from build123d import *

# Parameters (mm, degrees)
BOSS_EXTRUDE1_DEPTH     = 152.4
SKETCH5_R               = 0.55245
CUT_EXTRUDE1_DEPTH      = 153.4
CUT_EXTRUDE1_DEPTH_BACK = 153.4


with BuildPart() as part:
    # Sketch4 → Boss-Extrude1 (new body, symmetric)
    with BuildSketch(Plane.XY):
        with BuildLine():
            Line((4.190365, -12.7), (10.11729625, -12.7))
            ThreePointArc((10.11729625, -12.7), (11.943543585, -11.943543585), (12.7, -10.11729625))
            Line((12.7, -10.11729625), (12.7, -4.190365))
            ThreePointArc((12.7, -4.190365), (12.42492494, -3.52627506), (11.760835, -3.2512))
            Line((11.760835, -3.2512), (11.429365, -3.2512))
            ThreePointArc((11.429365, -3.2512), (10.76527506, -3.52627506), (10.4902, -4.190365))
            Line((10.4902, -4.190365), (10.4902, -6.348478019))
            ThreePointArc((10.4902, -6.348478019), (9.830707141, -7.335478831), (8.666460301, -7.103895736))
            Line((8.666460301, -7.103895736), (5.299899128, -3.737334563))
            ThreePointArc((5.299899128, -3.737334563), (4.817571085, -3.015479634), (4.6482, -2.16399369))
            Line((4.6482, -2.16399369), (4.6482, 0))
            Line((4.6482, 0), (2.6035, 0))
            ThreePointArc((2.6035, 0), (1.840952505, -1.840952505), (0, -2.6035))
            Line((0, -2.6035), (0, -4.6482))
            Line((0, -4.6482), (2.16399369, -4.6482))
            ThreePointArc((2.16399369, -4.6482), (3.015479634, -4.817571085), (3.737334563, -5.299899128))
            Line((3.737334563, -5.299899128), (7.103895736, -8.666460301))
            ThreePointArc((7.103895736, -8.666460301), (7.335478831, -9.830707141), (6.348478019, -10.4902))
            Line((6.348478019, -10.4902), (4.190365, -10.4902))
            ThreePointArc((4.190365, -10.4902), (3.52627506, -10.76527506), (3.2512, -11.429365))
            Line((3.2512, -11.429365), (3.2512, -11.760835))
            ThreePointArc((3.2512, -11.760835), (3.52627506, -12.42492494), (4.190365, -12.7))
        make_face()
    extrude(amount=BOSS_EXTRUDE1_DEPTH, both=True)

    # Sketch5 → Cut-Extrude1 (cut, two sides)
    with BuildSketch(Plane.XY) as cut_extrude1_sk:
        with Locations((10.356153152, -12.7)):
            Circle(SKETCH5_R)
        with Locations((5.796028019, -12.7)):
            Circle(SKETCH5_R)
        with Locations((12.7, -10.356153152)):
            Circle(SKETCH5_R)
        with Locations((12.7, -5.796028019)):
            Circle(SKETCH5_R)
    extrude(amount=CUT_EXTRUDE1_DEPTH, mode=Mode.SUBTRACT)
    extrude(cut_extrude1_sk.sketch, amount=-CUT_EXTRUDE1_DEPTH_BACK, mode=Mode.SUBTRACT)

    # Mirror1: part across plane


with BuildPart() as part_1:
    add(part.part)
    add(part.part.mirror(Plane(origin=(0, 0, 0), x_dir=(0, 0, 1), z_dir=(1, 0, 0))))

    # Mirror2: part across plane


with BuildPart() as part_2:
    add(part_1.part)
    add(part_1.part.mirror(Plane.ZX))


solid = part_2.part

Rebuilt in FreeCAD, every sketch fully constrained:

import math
import FreeCAD as App
import Part
import Sketcher
from FreeCAD import Vector
Q = App.Units.Quantity

doc = App.newDocument("Part")
body = doc.addObject("PartDesign::Body", "Body")

sketch1 = body.newObject("Sketcher::SketchObject", "Sketch")
sketch1.AttachmentSupport = (doc.getObject("XY_Plane"), [""])
sketch1.MapMode = "FlatFace"
sketch1.addGeometry(Part.LineSegment(Vector(4.19, -12.7, 0), Vector(10.12, -12.7, 0)), False)
sketch1.addGeometry(Part.ArcOfCircle(Part.Circle(Vector(10.12, -10.12, 0), Vector(0, 0, 1), 2.58), math.radians(-90), math.radians(0)), False)
sketch1.addGeometry(Part.LineSegment(Vector(12.7, -10.12, 0), Vector(12.7, -4.19, 0)), False)
sketch1.addGeometry(Part.ArcOfCircle(Part.Circle(Vector(11.76, -4.19, 0), Vector(0, 0, 1), 0.94), math.radians(0), math.radians(90)), False)
sketch1.addGeometry(Part.LineSegment(Vector(11.76, -3.25, 0), Vector(11.43, -3.25, 0)), False)
sketch1.addGeometry(Part.ArcOfCircle(Part.Circle(Vector(11.43, -4.19, 0), Vector(0, 0, 1), 0.94), math.radians(90), math.radians(180)), False)
sketch1.addGeometry(Part.LineSegment(Vector(10.49, -4.19, 0), Vector(10.49, -6.35, 0)), False)
sketch1.addGeometry(Part.ArcOfCircle(Part.Circle(Vector(9.42, -6.35, 0), Vector(0, 0, 1), 1.07), math.radians(-135), math.radians(0)), False)
sketch1.addGeometry(Part.LineSegment(Vector(8.67, -7.1, 0), Vector(5.3, -3.74, 0)), False)
sketch1.addGeometry(Part.ArcOfCircle(Part.Circle(Vector(6.87, -2.16, 0), Vector(0, 0, 1), 2.23), math.radians(-180), math.radians(-135)), False)
sketch1.addGeometry(Part.LineSegment(Vector(4.65, -2.16, 0), Vector(4.65, 0, 0)), False)
sketch1.addGeometry(Part.LineSegment(Vector(4.65, 0, 0), Vector(2.6, 0, 0)), False)
sketch1.addGeometry(Part.ArcOfCircle(Part.Circle(Vector(0, 0, 0), Vector(0, 0, 1), 2.6), math.radians(-90), math.radians(0)), False)
sketch1.addGeometry(Part.LineSegment(Vector(0, -2.6, 0), Vector(0, -4.65, 0)), False)
sketch1.addGeometry(Part.LineSegment(Vector(0, -4.65, 0), Vector(2.16, -4.65, 0)), False)
sketch1.addGeometry(Part.ArcOfCircle(Part.Circle(Vector(2.16, -6.87, 0), Vector(0, 0, 1), 2.23), math.radians(45), math.radians(90)), False)
sketch1.addGeometry(Part.LineSegment(Vector(3.74, -5.3, 0), Vector(7.1, -8.67, 0)), False)
sketch1.addGeometry(Part.ArcOfCircle(Part.Circle(Vector(6.35, -9.42, 0), Vector(0, 0, 1), 1.07), math.radians(-90), math.radians(45)), False)
sketch1.addGeometry(Part.LineSegment(Vector(6.35, -10.49, 0), Vector(4.19, -10.49, 0)), False)
sketch1.addGeometry(Part.ArcOfCircle(Part.Circle(Vector(4.19, -11.43, 0), Vector(0, 0, 1), 0.94), math.radians(90), math.radians(180)), False)
sketch1.addGeometry(Part.LineSegment(Vector(3.25, -11.43, 0), Vector(3.25, -11.76, 0)), False)
sketch1.addGeometry(Part.ArcOfCircle(Part.Circle(Vector(4.19, -11.76, 0), Vector(0, 0, 1), 0.94), math.radians(-180), math.radians(-90)), False)
sketch1.addConstraint(Sketcher.Constraint("Tangent", 0, 2, 1, 1))
sketch1.addConstraint(Sketcher.Constraint("Tangent", 1, 2, 2, 1))
sketch1.addConstraint(Sketcher.Constraint("Tangent", 2, 2, 3, 1))
sketch1.addConstraint(Sketcher.Constraint("Tangent", 3, 2, 4, 1))
sketch1.addConstraint(Sketcher.Constraint("Tangent", 4, 2, 5, 1))
sketch1.addConstraint(Sketcher.Constraint("Tangent", 5, 2, 6, 1))
sketch1.addConstraint(Sketcher.Constraint("Tangent", 6, 2, 7, 2))
sketch1.addConstraint(Sketcher.Constraint("Tangent", 7, 1, 8, 1))
sketch1.addConstraint(Sketcher.Constraint("Tangent", 8, 2, 9, 2))
sketch1.addConstraint(Sketcher.Constraint("Tangent", 9, 1, 10, 1))
sketch1.addConstraint(Sketcher.Constraint("Coincident", 10, 2, 11, 1))
sketch1.addConstraint(Sketcher.Constraint("Coincident", 11, 2, 12, 2))
sketch1.addConstraint(Sketcher.Constraint("Coincident", 12, 1, 13, 1))
sketch1.addConstraint(Sketcher.Constraint("Coincident", 13, 2, 14, 1))
sketch1.addConstraint(Sketcher.Constraint("Tangent", 14, 2, 15, 2))
sketch1.addConstraint(Sketcher.Constraint("Tangent", 15, 1, 16, 1))
sketch1.addConstraint(Sketcher.Constraint("Tangent", 16, 2, 17, 2))
sketch1.addConstraint(Sketcher.Constraint("Tangent", 17, 1, 18, 1))
sketch1.addConstraint(Sketcher.Constraint("Tangent", 18, 2, 19, 1))
sketch1.addConstraint(Sketcher.Constraint("Tangent", 19, 2, 20, 1))
sketch1.addConstraint(Sketcher.Constraint("Tangent", 20, 2, 21, 1))
sketch1.addConstraint(Sketcher.Constraint("Tangent", 21, 2, 0, 1))
sketch1.addConstraint(Sketcher.Constraint("Horizontal", 0))
sketch1.addConstraint(Sketcher.Constraint("Vertical", 2))
sketch1.addConstraint(Sketcher.Constraint("Horizontal", 4))
sketch1.addConstraint(Sketcher.Constraint("Vertical", 6))
sketch1.addConstraint(Sketcher.Constraint("Vertical", 10))
sketch1.addConstraint(Sketcher.Constraint("Horizontal", 11))
sketch1.addConstraint(Sketcher.Constraint("Vertical", 13))
sketch1.addConstraint(Sketcher.Constraint("Horizontal", 14))
sketch1.addConstraint(Sketcher.Constraint("Horizontal", 18))
sketch1.addConstraint(Sketcher.Constraint("Vertical", 20))
sketch1.addConstraint(Sketcher.Constraint("Coincident", 12, 3, -1, 1))
sketch1.addConstraint(Sketcher.Constraint("Equal", 3, 5))
sketch1.addConstraint(Sketcher.Constraint("Equal", 9, 15))
sketch1.addConstraint(Sketcher.Constraint("Equal", 7, 17))
sketch1.addConstraint(Sketcher.Constraint("Equal", 5, 19))
sketch1.addConstraint(Sketcher.Constraint("Equal", 19, 21))
sketch1.addConstraint(Sketcher.Constraint("PointOnObject", 10, 2, -1))
sketch1.addConstraint(Sketcher.Constraint("PointOnObject", 12, 1, -2))
sketch1.addConstraint(Sketcher.Constraint("Parallel", 8, 16))
sketch1.addConstraint(Sketcher.Constraint("Equal", 0, 2))
sketch1.addConstraint(Sketcher.Constraint("Equal", 18, 6))
sketch1.addConstraint(Sketcher.Constraint("Equal", 14, 10))
sketch1.addConstraint(Sketcher.Constraint("Equal", 11, 13))
sketch1.addConstraint(Sketcher.Constraint("Equal", 4, 20))
sketch1.addConstraint(Sketcher.Constraint("Equal", 8, 16))
sketch1.addConstraint(Sketcher.Constraint("DistanceY", 0, 2, -1, 1, Q("0.5 in")))
sketch1.addConstraint(Sketcher.Constraint("Radius", 9, Q("0.0876 in")))
sketch1.addConstraint(Sketcher.Constraint("Radius", 12, Q("0.1025 in")))
sketch1.addConstraint(Sketcher.Constraint("DistanceX", 9, 1, 5, 2, Q("0.23 in")))
sketch1.addConstraint(Sketcher.Constraint("DistanceX", 11, 2, 11, 1, Q("0.0805 in")))
sketch1.addConstraint(Sketcher.Constraint("DistanceY", 3, 2, -1, 1, Q("0.128 in")))
sketch1.addConstraint(Sketcher.Constraint("Radius", 7, Q("1.068322 mm")))
sketch1.addConstraint(Sketcher.Constraint("DistanceX", 17, 3, 7, 3, Q("0.121 in")))
sketch1.addConstraint(Sketcher.Constraint("Radius", 1, Q("2.582704 mm")))
sketch1.addConstraint(Sketcher.Constraint("Radius", 3, Q("0.939165 mm")))
pad1 = body.newObject("PartDesign::Pad", "Pad")
pad1.Profile = sketch1
pad1.Length = Q("12 in")
pad1.Midplane = True

sketch2 = body.newObject("Sketcher::SketchObject", "Sketch001")
sketch2.AttachmentSupport = (doc.getObject("XY_Plane"), [""])
sketch2.MapMode = "FlatFace"
sketch2.addGeometry(Part.Circle(Vector(10.4, -12.7, 0), Vector(0, 0, 1), 0.6), False)
sketch2.addGeometry(Part.Circle(Vector(5.8, -12.7, 0), Vector(0, 0, 1), 0.6), False)
sketch2.addGeometry(Part.Circle(Vector(12.7, -10.4, 0), Vector(0, 0, 1), 0.6), False)
sketch2.addGeometry(Part.Circle(Vector(12.7, -5.8, 0), Vector(0, 0, 1), 0.6), False)
sketch2.addConstraint(Sketcher.Constraint("Equal", 0, 1))
sketch2.addConstraint(Sketcher.Constraint("Equal", 1, 2))
sketch2.addConstraint(Sketcher.Constraint("Equal", 2, 3))
sketch2.addConstraint(Sketcher.Constraint("Horizontal", 0, 3, 1, 3))
sketch2.addConstraint(Sketcher.Constraint("Vertical", 2, 3, 3, 3))
sketch2.addConstraint(Sketcher.Constraint("Diameter", 0, Q("0.0435 in")))
sketch2.addConstraint(Sketcher.Constraint("DistanceY", 0, 3, -1, 1, Q("0.5 in")))
sketch2.addConstraint(Sketcher.Constraint("DistanceX", -1, 1, 2, 3, Q("0.5 in")))
sketch2.addConstraint(Sketcher.Constraint("DistanceX", -1, 1, 1, 3, Q("5.796028 mm")))
sketch2.addConstraint(Sketcher.Constraint("DistanceY", 3, 3, -1, 1, Q("5.796028 mm")))
sketch2.addConstraint(Sketcher.Constraint("DistanceX", -1, 1, 0, 3, Q("10.356153 mm")))
sketch2.addConstraint(Sketcher.Constraint("DistanceY", 2, 3, -1, 1, Q("10.356153 mm")))
pocket1 = body.newObject("PartDesign::Pocket", "Pocket")
pocket1.Profile = sketch2
pocket1.Type = "ThroughAll"
pocket1.Midplane = True
body2 = doc.addObject("PartDesign::Body", "Body001")
doc.recompute()

body2.BaseFeature = body
doc.recompute()

mirroring = doc.addObject("Part::Mirroring", "Mirroring")
mirroring.Source = body
mirroring.Base = Vector(0, 0, 0)
mirroring.Normal = Vector(1, 0, 0)
body3 = doc.addObject("PartDesign::Body", "Body002")
body3.BaseFeature = mirroring
boolean = body2.newObject("PartDesign::Boolean", "Boolean")
boolean.Type = "Fuse"
boolean.addObjects([body3])
doc.recompute()
body4 = doc.addObject("PartDesign::Body", "Body003")
doc.recompute()

body4.BaseFeature = body2
doc.recompute()

mirroring2 = doc.addObject("Part::Mirroring", "Mirroring001")
mirroring2.Source = body2
mirroring2.Base = Vector(0, 0, 0)
mirroring2.Normal = Vector(0, 1, 0)
body5 = doc.addObject("PartDesign::Body", "Body004")
body5.BaseFeature = mirroring2
boolean2 = body4.newObject("PartDesign::Boolean", "Boolean001")
boolean2.Type = "Fuse"
boolean2.addObjects([body5])
doc.recompute()
mirroring.Visibility = False
mirroring2.Visibility = False

doc.recompute()
